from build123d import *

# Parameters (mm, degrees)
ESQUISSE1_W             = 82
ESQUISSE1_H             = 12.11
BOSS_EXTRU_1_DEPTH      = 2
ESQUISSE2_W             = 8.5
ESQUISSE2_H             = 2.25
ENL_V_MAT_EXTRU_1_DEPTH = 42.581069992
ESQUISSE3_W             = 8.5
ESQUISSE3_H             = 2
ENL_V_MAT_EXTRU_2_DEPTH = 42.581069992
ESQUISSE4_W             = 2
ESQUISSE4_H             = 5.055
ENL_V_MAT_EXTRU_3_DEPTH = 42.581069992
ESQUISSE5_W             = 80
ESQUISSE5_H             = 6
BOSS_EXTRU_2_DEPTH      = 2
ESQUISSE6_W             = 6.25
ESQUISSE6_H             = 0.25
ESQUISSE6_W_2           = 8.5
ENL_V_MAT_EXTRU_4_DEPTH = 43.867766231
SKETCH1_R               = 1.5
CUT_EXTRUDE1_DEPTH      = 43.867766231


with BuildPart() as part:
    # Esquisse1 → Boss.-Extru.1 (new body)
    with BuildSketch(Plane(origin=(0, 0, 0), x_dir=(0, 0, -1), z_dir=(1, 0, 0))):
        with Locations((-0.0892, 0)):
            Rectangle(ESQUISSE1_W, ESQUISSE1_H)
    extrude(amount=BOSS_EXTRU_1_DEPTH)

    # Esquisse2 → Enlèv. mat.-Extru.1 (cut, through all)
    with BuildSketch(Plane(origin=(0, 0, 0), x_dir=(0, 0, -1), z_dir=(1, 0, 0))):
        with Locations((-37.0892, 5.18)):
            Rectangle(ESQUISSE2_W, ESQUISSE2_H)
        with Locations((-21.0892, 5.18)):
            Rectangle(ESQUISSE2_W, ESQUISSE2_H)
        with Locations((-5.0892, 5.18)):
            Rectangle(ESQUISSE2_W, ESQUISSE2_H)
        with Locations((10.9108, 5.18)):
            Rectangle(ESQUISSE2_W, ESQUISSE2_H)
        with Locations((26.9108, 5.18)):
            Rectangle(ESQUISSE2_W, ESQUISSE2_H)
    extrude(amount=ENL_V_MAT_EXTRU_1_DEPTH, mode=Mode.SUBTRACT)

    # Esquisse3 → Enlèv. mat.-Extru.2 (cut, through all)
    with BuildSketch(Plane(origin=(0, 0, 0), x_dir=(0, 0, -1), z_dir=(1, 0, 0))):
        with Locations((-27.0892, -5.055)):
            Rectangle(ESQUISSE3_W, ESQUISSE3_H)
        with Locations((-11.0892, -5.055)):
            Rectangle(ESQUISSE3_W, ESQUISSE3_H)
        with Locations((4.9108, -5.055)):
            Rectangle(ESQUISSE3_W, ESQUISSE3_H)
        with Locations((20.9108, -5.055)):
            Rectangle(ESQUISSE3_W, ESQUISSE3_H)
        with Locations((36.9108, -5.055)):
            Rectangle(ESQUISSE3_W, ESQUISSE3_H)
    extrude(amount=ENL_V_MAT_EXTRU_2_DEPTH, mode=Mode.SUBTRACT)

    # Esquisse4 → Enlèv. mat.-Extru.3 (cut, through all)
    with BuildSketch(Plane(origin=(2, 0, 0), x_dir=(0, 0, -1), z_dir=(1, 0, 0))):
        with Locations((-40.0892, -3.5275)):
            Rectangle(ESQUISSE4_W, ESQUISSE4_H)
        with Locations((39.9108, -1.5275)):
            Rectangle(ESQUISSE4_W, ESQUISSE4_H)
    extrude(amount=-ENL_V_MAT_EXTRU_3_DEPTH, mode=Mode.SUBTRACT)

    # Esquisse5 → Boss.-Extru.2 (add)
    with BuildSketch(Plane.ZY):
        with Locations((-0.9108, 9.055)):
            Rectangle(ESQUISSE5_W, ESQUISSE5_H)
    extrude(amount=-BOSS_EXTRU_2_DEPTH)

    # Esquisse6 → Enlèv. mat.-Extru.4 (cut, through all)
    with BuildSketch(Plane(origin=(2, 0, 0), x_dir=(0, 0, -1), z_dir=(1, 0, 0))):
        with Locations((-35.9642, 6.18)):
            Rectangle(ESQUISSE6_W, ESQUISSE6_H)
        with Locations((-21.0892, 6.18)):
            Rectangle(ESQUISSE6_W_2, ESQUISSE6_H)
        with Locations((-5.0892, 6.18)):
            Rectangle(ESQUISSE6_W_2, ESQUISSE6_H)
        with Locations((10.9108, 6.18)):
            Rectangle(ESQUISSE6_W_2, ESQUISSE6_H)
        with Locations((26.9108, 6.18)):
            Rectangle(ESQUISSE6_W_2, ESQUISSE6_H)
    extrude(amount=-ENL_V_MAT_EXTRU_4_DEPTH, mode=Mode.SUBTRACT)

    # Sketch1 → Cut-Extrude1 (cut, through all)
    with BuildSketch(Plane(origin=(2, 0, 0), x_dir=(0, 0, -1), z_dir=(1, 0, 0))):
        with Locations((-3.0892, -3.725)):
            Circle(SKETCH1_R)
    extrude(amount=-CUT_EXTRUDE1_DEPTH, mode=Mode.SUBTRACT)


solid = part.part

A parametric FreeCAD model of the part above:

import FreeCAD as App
import Part
import Sketcher
Q = App.Units.Quantity


def add_polygon(sketch, points):
    """Adds a closed chain of lines whose ends are joined by coincident constraints."""
    first, n = sketch.GeometryCount, len(points)
    for a, b in zip(points, points[1:] + points[:1]):
        sketch.addGeometry(Part.LineSegment(App.Vector(*a, 0), App.Vector(*b, 0)), False)
    for i in range(n):
        sketch.addConstraint(Sketcher.Constraint("Coincident", first + i, 2, first + (i + 1) % n, 1))

doc = App.newDocument("Part")
body = doc.addObject("PartDesign::Body", "Body")

# Sketch on YZ plane
sketch1 = body.newObject("Sketcher::SketchObject", "Sketch")
sketch1.AttachmentSupport = (doc.getObject("YZ_Plane"), [""])
sketch1.MapMode = "FlatFace"
add_polygon(sketch1, [(6, 41), (-6, 41), (-6, -41), (6, -41)])  # lines 0-3
sketch1.addConstraint(Sketcher.Constraint("Horizontal", 0))
sketch1.addConstraint(Sketcher.Constraint("Vertical", 1))
sketch1.addConstraint(Sketcher.Constraint("Horizontal", 2))
sketch1.addConstraint(Sketcher.Constraint("Vertical", 3))
sketch1.addConstraint(Sketcher.Constraint("DistanceY", 1, 2, 1, 1, Q("82 mm")))
sketch1.addConstraint(Sketcher.Constraint("DistanceX", 0, 2, 0, 1, Q("12.11 mm")))
sketch1.addConstraint(Sketcher.Constraint("DistanceX", 0, 2, -1, 1, Q("6.055 mm")))
sketch1.addConstraint(Sketcher.Constraint("DistanceY", -1, 1, 0, 2, Q("41.0892 mm")))
pad1 = body.newObject("PartDesign::Pad", "Pad")
pad1.Profile = sketch1
pad1.Length = 2

# Sketch on YZ plane
sketch2 = body.newObject("Sketcher::SketchObject", "Sketch001")
sketch2.AttachmentSupport = (doc.getObject("YZ_Plane"), [""])
sketch2.MapMode = "FlatFace"
add_polygon(sketch2, [(6.3, 41.3), (4.1, 41.3), (4.1, 32.8), (6.3, 32.8)])  # lines 0-3
add_polygon(sketch2, [(6.3, 25.3), (4.1, 25.3), (4.1, 16.8), (6.3, 16.8)])  # lines 4-7
add_polygon(sketch2, [(6.3, 9.3), (4.1, 9.3), (4.1, 0.8), (6.3, 0.8)])  # lines 8-11
add_polygon(sketch2, [(6.3, -6.7), (4.1, -6.7), (4.1, -15.2), (6.3, -15.2)])  # lines 12-15
add_polygon(sketch2, [(6.3, -22.7), (4.1, -22.7), (4.1, -31.2), (6.3, -31.2)])  # lines 16-19
sketch2.addConstraint(Sketcher.Constraint("Horizontal", 0))
sketch2.addConstraint(Sketcher.Constraint("Vertical", 1))
sketch2.addConstraint(Sketcher.Constraint("Horizontal", 2))
sketch2.addConstraint(Sketcher.Constraint("Vertical", 3))
sketch2.addConstraint(Sketcher.Constraint("Horizontal", 4))
sketch2.addConstraint(Sketcher.Constraint("Vertical", 5))
sketch2.addConstraint(Sketcher.Constraint("Horizontal", 6))
sketch2.addConstraint(Sketcher.Constraint("Vertical", 7))
sketch2.addConstraint(Sketcher.Constraint("Horizontal", 8))
sketch2.addConstraint(Sketcher.Constraint("Vertical", 9))
sketch2.addConstraint(Sketcher.Constraint("Horizontal", 10))
sketch2.addConstraint(Sketcher.Constraint("Vertical", 11))
sketch2.addConstraint(Sketcher.Constraint("Horizontal", 12))
sketch2.addConstraint(Sketcher.Constraint("Vertical", 13))
sketch2.addConstraint(Sketcher.Constraint("Horizontal", 14))
sketch2.addConstraint(Sketcher.Constraint("Vertical", 15))
sketch2.addConstraint(Sketcher.Constraint("Horizontal", 16))
sketch2.addConstraint(Sketcher.Constraint("Vertical", 17))
sketch2.addConstraint(Sketcher.Constraint("Horizontal", 18))
sketch2.addConstraint(Sketcher.Constraint("Vertical", 19))
sketch2.addConstraint(Sketcher.Constraint("Vertical", 1, 2, 4, 2))
sketch2.addConstraint(Sketcher.Constraint("Vertical", 3, 2, 6, 2))
sketch2.addConstraint(Sketcher.Constraint("Vertical", 5, 2, 8, 2))
sketch2.addConstraint(Sketcher.Constraint("Vertical", 7, 2, 10, 2))
sketch2.addConstraint(Sketcher.Constraint("Vertical", 9, 2, 12, 2))
sketch2.addConstraint(Sketcher.Constraint("Vertical", 11, 2, 14, 2))
sketch2.addConstraint(Sketcher.Constraint("Vertical", 13, 2, 16, 2))
sketch2.addConstraint(Sketcher.Constraint("Vertical", 15, 2, 18, 2))
sketch2.addConstraint(Sketcher.Constraint("Equal", 3, 5))
sketch2.addConstraint(Sketcher.Constraint("Equal", 7, 9))
sketch2.addConstraint(Sketcher.Constraint("Equal", 11, 13))
sketch2.addConstraint(Sketcher.Constraint("Equal", 15, 17))
sketch2.addConstraint(Sketcher.Constraint("DistanceY", 1, 2, 1, 1, Q("8.5 mm")))
sketch2.addConstraint(Sketcher.Constraint("DistanceY", 4, 2, 0, 2, Q("16 mm")))
sketch2.addConstraint(Sketcher.Constraint("DistanceY", 8, 2, 4, 2, Q("16 mm")))
sketch2.addConstraint(Sketcher.Constraint("DistanceY", 12, 2, 8, 2, Q("16 mm")))
sketch2.addConstraint(Sketcher.Constraint("DistanceY", 16, 2, 12, 2, Q("16 mm")))
sketch2.addConstraint(Sketcher.Constraint("DistanceX", 0, 2, 0, 1, Q("2.25 mm")))
sketch2.addConstraint(Sketcher.Constraint("DistanceX", -1, 1, 0, 2, Q("4.055 mm")))
sketch2.addConstraint(Sketcher.Constraint("DistanceY", -1, 1, 0, 2, Q("41.3392 mm")))
pocket1 = body.newObject("PartDesign::Pocket", "Pocket")
pocket1.Profile = sketch2
pocket1.Type = "ThroughAll"
pocket1.Reversed = True

# Sketch on YZ plane
sketch3 = body.newObject("Sketcher::SketchObject", "Sketch002")
sketch3.AttachmentSupport = (doc.getObject("YZ_Plane"), [""])
sketch3.MapMode = "FlatFace"
add_polygon(sketch3, [(-4.1, 31.3), (-6.1, 31.3), (-6.1, 22.8), (-4.1, 22.8)])  # lines 0-3
add_polygon(sketch3, [(-4.1, 15.3), (-6.1, 15.3), (-6.1, 6.8), (-4.1, 6.8)])  # lines 4-7
add_polygon(sketch3, [(-4.1, -0.7), (-6.1, -0.7), (-6.1, -9.2), (-4.1, -9.2)])  # lines 8-11
add_polygon(sketch3, [(-4.1, -16.7), (-6.1, -16.7), (-6.1, -25.2), (-4.1, -25.2)])  # lines 12-15
add_polygon(sketch3, [(-4.1, -32.7), (-6.1, -32.7), (-6.1, -41.2), (-4.1, -41.2)])  # lines 16-19
sketch3.addConstraint(Sketcher.Constraint("Horizontal", 0))
sketch3.addConstraint(Sketcher.Constraint("Vertical", 1))
sketch3.addConstraint(Sketcher.Constraint("Horizontal", 2))
sketch3.addConstraint(Sketcher.Constraint("Vertical", 3))
sketch3.addConstraint(Sketcher.Constraint("Horizontal", 4))
sketch3.addConstraint(Sketcher.Constraint("Vertical", 5))
sketch3.addConstraint(Sketcher.Constraint("Horizontal", 6))
sketch3.addConstraint(Sketcher.Constraint("Vertical", 7))
sketch3.addConstraint(Sketcher.Constraint("Horizontal", 8))
sketch3.addConstraint(Sketcher.Constraint("Vertical", 9))
sketch3.addConstraint(Sketcher.Constraint("Horizontal", 10))
sketch3.addConstraint(Sketcher.Constraint("Vertical", 11))
sketch3.addConstraint(Sketcher.Constraint("Horizontal", 12))
sketch3.addConstraint(Sketcher.Constraint("Vertical", 13))
sketch3.addConstraint(Sketcher.Constraint("Horizontal", 14))
sketch3.addConstraint(Sketcher.Constraint("Vertical", 15))
sketch3.addConstraint(Sketcher.Constraint("Horizontal", 16))
sketch3.addConstraint(Sketcher.Constraint("Vertical", 17))
sketch3.addConstraint(Sketcher.Constraint("Horizontal", 18))
sketch3.addConstraint(Sketcher.Constraint("Vertical", 19))
sketch3.addConstraint(Sketcher.Constraint("Vertical", 1, 2, 4, 2))
sketch3.addConstraint(Sketcher.Constraint("Vertical", 3, 2, 6, 2))
sketch3.addConstraint(Sketcher.Constraint("Vertical", 5, 2, 8, 2))
sketch3.addConstraint(Sketcher.Constraint("Vertical", 7, 2, 10, 2))
sketch3.addConstraint(Sketcher.Constraint("Vertical", 9, 2, 12, 2))
sketch3.addConstraint(Sketcher.Constraint("Vertical", 11, 2, 14, 2))
sketch3.addConstraint(Sketcher.Constraint("Vertical", 13, 2, 16, 2))
sketch3.addConstraint(Sketcher.Constraint("Vertical", 15, 2, 18, 2))
sketch3.addConstraint(Sketcher.Constraint("Equal", 3, 5))
sketch3.addConstraint(Sketcher.Constraint("Equal", 7, 9))
sketch3.addConstraint(Sketcher.Constraint("Equal", 11, 13))
sketch3.addConstraint(Sketcher.Constraint("Equal", 15, 17))
sketch3.addConstraint(Sketcher.Constraint("DistanceX", 0, 2, 0, 1, Q("2 mm")))
sketch3.addConstraint(Sketcher.Constraint("DistanceY", 1, 2, 1, 1, Q("8.5 mm")))
sketch3.addConstraint(Sketcher.Constraint("DistanceY", 4, 2, 0, 2, Q("16 mm")))
sketch3.addConstraint(Sketcher.Constraint("DistanceY", 8, 2, 4, 2, Q("16 mm")))
sketch3.addConstraint(Sketcher.Constraint("DistanceY", 12, 2, 8, 2, Q("16 mm")))
sketch3.addConstraint(Sketcher.Constraint("DistanceY", 16, 2, 12, 2, Q("16 mm")))
sketch3.addConstraint(Sketcher.Constraint("DistanceX", 0, 2, -1, 1, Q("6.055 mm")))
sketch3.addConstraint(Sketcher.Constraint("DistanceY", -1, 1, 0, 2, Q("31.3392 mm")))
pocket2 = body.newObject("PartDesign::Pocket", "Pocket001")
pocket2.Profile = sketch3
pocket2.Type = "ThroughAll"
pocket2.Reversed = True

# Sketch on YZ plane
sketch4 = body.newObject("Sketcher::SketchObject", "Sketch003")
sketch4.AttachmentSupport = (doc.getObject("YZ_Plane"), [""])
sketch4.MapMode = "FlatFace"
sketch4.AttachmentOffset = App.Placement(App.Vector(0, 0, 2), App.Rotation())
add_polygon(sketch4, [(-1, 41.1), (-6.1, 41.1), (-6.1, 39.1), (-1, 39.1)])  # lines 0-3
add_polygon(sketch4, [(1, -38.9), (-4.1, -38.9), (-4.1, -40.9), (1, -40.9)])  # lines 4-7
sketch4.addConstraint(Sketcher.Constraint("Horizontal", 0))
sketch4.addConstraint(Sketcher.Constraint("Vertical", 1))
sketch4.addConstraint(Sketcher.Constraint("Horizontal", 2))
sketch4.addConstraint(Sketcher.Constraint("Vertical", 3))
sketch4.addConstraint(Sketcher.Constraint("Horizontal", 4))
sketch4.addConstraint(Sketcher.Constraint("Vertical", 5))
sketch4.addConstraint(Sketcher.Constraint("Horizontal", 6))
sketch4.addConstraint(Sketcher.Constraint("Vertical", 7))
sketch4.addConstraint(Sketcher.Constraint("Equal", 2, 4))
sketch4.addConstraint(Sketcher.Constraint("Equal", 3, 5))
sketch4.addConstraint(Sketcher.Constraint("DistanceY", 1, 2, 1, 1, Q("2 mm")))
sketch4.addConstraint(Sketcher.Constraint("DistanceX", 2, 2, -1, 1, Q("1 mm")))
sketch4.addConstraint(Sketcher.Constraint("DistanceX", -1, 1, 6, 2, Q("1 mm")))
sketch4.addConstraint(Sketcher.Constraint("DistanceY", 4, 2, 1, 2, Q("78 mm")))
sketch4.addConstraint(Sketcher.Constraint("DistanceX", 0, 2, 0, 1, Q("5.055 mm")))
sketch4.addConstraint(Sketcher.Constraint("DistanceY", -1, 1, 0, 2, Q("41.0892 mm")))
pocket3 = body.newObject("PartDesign::Pocket", "Pocket002")
pocket3.Profile = sketch4
pocket3.Type = "ThroughAll"

# Sketch on YZ plane
sketch5 = body.newObject("Sketcher::SketchObject", "Sketch004")
sketch5.AttachmentSupport = (doc.getObject("YZ_Plane"), [""])
sketch5.MapMode = "FlatFace"
add_polygon(sketch5, [(12, -41), (6, -41), (6, 39), (12, 39)])  # lines 0-3
sketch5.addConstraint(Sketcher.Constraint("Horizontal", 0))
sketch5.addConstraint(Sketcher.Constraint("Vertical", 1))
sketch5.addConstraint(Sketcher.Constraint("Horizontal", 2))
sketch5.addConstraint(Sketcher.Constraint("Vertical", 3))
sketch5.addConstraint(Sketcher.Constraint("DistanceX", 0, 2, 0, 1, Q("6 mm")))
sketch5.addConstraint(Sketcher.Constraint("DistanceY", 1, 1, 1, 2, Q("80 mm")))
sketch5.addConstraint(Sketcher.Constraint("DistanceX", -1, 1, 0, 2, Q("6.055 mm")))
sketch5.addConstraint(Sketcher.Constraint("DistanceY", 0, 2, -1, 1, Q("40.9108 mm")))
pad2 = body.newObject("PartDesign::Pad", "Pad001")
pad2.Profile = sketch5
pad2.Length = 2

# Sketch on YZ plane
sketch6 = body.newObject("Sketcher::SketchObject", "Sketch005")
sketch6.AttachmentSupport = (doc.getObject("YZ_Plane"), [""])
sketch6.MapMode = "FlatFace"
sketch6.AttachmentOffset = App.Placement(App.Vector(0, 0, 2), App.Rotation())
add_polygon(sketch6, [(6.3, 39.09), (6.05, 39.09), (6.05, 32.84), (6.3, 32.84)])  # lines 0-3
add_polygon(sketch6, [(6.3, 25.34), (6.05, 25.34), (6.05, 16.84), (6.3, 16.84)])  # lines 4-7
add_polygon(sketch6, [(6.3, 9.34), (6.05, 9.34), (6.05, 0.84), (6.3, 0.84)])  # lines 8-11
add_polygon(sketch6, [(6.3, -6.66), (6.05, -6.66), (6.05, -15.16), (6.3, -15.16)])  # lines 12-15
add_polygon(sketch6, [(6.3, -22.66), (6.05, -22.66), (6.05, -31.16), (6.3, -31.16)])  # lines 16-19
sketch6.addConstraint(Sketcher.Constraint("Horizontal", 0))
sketch6.addConstraint(Sketcher.Constraint("Vertical", 1))
sketch6.addConstraint(Sketcher.Constraint("Horizontal", 2))
sketch6.addConstraint(Sketcher.Constraint("Vertical", 3))
sketch6.addConstraint(Sketcher.Constraint("Horizontal", 4))
sketch6.addConstraint(Sketcher.Constraint("Vertical", 5))
sketch6.addConstraint(Sketcher.Constraint("Horizontal", 6))
sketch6.addConstraint(Sketcher.Constraint("Vertical", 7))
sketch6.addConstraint(Sketcher.Constraint("Horizontal", 8))
sketch6.addConstraint(Sketcher.Constraint("Vertical", 9))
sketch6.addConstraint(Sketcher.Constraint("Horizontal", 10))
sketch6.addConstraint(Sketcher.Constraint("Vertical", 11))
sketch6.addConstraint(Sketcher.Constraint("Horizontal", 12))
sketch6.addConstraint(Sketcher.Constraint("Vertical", 13))
sketch6.addConstraint(Sketcher.Constraint("Horizontal", 14))
sketch6.addConstraint(Sketcher.Constraint("Vertical", 15))
sketch6.addConstraint(Sketcher.Constraint("Horizontal", 16))
sketch6.addConstraint(Sketcher.Constraint("Vertical", 17))
sketch6.addConstraint(Sketcher.Constraint("Horizontal", 18))
sketch6.addConstraint(Sketcher.Constraint("Vertical", 19))
sketch6.addConstraint(Sketcher.Constraint("Vertical", 1, 2, 4, 2))
sketch6.addConstraint(Sketcher.Constraint("Vertical", 3, 2, 6, 2))
sketch6.addConstraint(Sketcher.Constraint("Vertical", 5, 2, 8, 2))
sketch6.addConstraint(Sketcher.Constraint("Vertical", 7, 2, 10, 2))
sketch6.addConstraint(Sketcher.Constraint("Vertical", 9, 2, 12, 2))
sketch6.addConstraint(Sketcher.Constraint("Vertical", 11, 2, 14, 2))
sketch6.addConstraint(Sketcher.Constraint("Vertical", 13, 2, 16, 2))
sketch6.addConstraint(Sketcher.Constraint("Vertical", 15, 2, 18, 2))
sketch6.addConstraint(Sketcher.Constraint("Equal", 7, 9))
sketch6.addConstraint(Sketcher.Constraint("Equal", 11, 13))
sketch6.addConstraint(Sketcher.Constraint("Equal", 15, 17))
sketch6.addConstraint(Sketcher.Constraint("DistanceY", 5, 2, 5, 1, Q("8.5 mm")))
sketch6.addConstraint(Sketcher.Constraint("DistanceY", 5, 2, 1, 2, Q("16 mm")))
sketch6.addConstraint(Sketcher.Constraint("DistanceY", 8, 2, 4, 2, Q("16 mm")))
sketch6.addConstraint(Sketcher.Constraint("DistanceY", 12, 2, 8, 2, Q("16 mm")))
sketch6.addConstraint(Sketcher.Constraint("DistanceY", 16, 2, 12, 2, Q("16 mm")))
sketch6.addConstraint(Sketcher.Constraint("DistanceX", 0, 2, 0, 1, Q("0.25 mm")))
sketch6.addConstraint(Sketcher.Constraint("DistanceY", 1, 2, 1, 1, Q("6.25 mm")))
sketch6.addConstraint(Sketcher.Constraint("DistanceX", -1, 1, 0, 2, Q("6.055 mm")))
sketch6.addConstraint(Sketcher.Constraint("DistanceY", -1, 1, 0, 2, Q("39.0892 mm")))
pocket4 = body.newObject("PartDesign::Pocket", "Pocket003")
pocket4.Profile = sketch6
pocket4.Type = "ThroughAll"

# Sketch on YZ plane
sketch7 = body.newObject("Sketcher::SketchObject", "Sketch006")
sketch7.AttachmentSupport = (doc.getObject("YZ_Plane"), [""])
sketch7.MapMode = "FlatFace"
sketch7.AttachmentOffset = App.Placement(App.Vector(0, 0, 2), App.Rotation())
sketch7.addGeometry(Part.Circle(App.Vector(-3.7, 3.1, 0), App.Vector(0, 0, 1), 1.5), False)
sketch7.addConstraint(Sketcher.Constraint("Diameter", 0, Q("3 mm")))
sketch7.addConstraint(Sketcher.Constraint("DistanceX", 0, 3, -1, 1, Q("3.725 mm")))
sketch7.addConstraint(Sketcher.Constraint("DistanceY", -1, 1, 0, 3, Q("3.0892 mm")))
pocket5 = body.newObject("PartDesign::Pocket", "Pocket004")
pocket5.Profile = sketch7
pocket5.Type = "ThroughAll"

doc.recompute()
